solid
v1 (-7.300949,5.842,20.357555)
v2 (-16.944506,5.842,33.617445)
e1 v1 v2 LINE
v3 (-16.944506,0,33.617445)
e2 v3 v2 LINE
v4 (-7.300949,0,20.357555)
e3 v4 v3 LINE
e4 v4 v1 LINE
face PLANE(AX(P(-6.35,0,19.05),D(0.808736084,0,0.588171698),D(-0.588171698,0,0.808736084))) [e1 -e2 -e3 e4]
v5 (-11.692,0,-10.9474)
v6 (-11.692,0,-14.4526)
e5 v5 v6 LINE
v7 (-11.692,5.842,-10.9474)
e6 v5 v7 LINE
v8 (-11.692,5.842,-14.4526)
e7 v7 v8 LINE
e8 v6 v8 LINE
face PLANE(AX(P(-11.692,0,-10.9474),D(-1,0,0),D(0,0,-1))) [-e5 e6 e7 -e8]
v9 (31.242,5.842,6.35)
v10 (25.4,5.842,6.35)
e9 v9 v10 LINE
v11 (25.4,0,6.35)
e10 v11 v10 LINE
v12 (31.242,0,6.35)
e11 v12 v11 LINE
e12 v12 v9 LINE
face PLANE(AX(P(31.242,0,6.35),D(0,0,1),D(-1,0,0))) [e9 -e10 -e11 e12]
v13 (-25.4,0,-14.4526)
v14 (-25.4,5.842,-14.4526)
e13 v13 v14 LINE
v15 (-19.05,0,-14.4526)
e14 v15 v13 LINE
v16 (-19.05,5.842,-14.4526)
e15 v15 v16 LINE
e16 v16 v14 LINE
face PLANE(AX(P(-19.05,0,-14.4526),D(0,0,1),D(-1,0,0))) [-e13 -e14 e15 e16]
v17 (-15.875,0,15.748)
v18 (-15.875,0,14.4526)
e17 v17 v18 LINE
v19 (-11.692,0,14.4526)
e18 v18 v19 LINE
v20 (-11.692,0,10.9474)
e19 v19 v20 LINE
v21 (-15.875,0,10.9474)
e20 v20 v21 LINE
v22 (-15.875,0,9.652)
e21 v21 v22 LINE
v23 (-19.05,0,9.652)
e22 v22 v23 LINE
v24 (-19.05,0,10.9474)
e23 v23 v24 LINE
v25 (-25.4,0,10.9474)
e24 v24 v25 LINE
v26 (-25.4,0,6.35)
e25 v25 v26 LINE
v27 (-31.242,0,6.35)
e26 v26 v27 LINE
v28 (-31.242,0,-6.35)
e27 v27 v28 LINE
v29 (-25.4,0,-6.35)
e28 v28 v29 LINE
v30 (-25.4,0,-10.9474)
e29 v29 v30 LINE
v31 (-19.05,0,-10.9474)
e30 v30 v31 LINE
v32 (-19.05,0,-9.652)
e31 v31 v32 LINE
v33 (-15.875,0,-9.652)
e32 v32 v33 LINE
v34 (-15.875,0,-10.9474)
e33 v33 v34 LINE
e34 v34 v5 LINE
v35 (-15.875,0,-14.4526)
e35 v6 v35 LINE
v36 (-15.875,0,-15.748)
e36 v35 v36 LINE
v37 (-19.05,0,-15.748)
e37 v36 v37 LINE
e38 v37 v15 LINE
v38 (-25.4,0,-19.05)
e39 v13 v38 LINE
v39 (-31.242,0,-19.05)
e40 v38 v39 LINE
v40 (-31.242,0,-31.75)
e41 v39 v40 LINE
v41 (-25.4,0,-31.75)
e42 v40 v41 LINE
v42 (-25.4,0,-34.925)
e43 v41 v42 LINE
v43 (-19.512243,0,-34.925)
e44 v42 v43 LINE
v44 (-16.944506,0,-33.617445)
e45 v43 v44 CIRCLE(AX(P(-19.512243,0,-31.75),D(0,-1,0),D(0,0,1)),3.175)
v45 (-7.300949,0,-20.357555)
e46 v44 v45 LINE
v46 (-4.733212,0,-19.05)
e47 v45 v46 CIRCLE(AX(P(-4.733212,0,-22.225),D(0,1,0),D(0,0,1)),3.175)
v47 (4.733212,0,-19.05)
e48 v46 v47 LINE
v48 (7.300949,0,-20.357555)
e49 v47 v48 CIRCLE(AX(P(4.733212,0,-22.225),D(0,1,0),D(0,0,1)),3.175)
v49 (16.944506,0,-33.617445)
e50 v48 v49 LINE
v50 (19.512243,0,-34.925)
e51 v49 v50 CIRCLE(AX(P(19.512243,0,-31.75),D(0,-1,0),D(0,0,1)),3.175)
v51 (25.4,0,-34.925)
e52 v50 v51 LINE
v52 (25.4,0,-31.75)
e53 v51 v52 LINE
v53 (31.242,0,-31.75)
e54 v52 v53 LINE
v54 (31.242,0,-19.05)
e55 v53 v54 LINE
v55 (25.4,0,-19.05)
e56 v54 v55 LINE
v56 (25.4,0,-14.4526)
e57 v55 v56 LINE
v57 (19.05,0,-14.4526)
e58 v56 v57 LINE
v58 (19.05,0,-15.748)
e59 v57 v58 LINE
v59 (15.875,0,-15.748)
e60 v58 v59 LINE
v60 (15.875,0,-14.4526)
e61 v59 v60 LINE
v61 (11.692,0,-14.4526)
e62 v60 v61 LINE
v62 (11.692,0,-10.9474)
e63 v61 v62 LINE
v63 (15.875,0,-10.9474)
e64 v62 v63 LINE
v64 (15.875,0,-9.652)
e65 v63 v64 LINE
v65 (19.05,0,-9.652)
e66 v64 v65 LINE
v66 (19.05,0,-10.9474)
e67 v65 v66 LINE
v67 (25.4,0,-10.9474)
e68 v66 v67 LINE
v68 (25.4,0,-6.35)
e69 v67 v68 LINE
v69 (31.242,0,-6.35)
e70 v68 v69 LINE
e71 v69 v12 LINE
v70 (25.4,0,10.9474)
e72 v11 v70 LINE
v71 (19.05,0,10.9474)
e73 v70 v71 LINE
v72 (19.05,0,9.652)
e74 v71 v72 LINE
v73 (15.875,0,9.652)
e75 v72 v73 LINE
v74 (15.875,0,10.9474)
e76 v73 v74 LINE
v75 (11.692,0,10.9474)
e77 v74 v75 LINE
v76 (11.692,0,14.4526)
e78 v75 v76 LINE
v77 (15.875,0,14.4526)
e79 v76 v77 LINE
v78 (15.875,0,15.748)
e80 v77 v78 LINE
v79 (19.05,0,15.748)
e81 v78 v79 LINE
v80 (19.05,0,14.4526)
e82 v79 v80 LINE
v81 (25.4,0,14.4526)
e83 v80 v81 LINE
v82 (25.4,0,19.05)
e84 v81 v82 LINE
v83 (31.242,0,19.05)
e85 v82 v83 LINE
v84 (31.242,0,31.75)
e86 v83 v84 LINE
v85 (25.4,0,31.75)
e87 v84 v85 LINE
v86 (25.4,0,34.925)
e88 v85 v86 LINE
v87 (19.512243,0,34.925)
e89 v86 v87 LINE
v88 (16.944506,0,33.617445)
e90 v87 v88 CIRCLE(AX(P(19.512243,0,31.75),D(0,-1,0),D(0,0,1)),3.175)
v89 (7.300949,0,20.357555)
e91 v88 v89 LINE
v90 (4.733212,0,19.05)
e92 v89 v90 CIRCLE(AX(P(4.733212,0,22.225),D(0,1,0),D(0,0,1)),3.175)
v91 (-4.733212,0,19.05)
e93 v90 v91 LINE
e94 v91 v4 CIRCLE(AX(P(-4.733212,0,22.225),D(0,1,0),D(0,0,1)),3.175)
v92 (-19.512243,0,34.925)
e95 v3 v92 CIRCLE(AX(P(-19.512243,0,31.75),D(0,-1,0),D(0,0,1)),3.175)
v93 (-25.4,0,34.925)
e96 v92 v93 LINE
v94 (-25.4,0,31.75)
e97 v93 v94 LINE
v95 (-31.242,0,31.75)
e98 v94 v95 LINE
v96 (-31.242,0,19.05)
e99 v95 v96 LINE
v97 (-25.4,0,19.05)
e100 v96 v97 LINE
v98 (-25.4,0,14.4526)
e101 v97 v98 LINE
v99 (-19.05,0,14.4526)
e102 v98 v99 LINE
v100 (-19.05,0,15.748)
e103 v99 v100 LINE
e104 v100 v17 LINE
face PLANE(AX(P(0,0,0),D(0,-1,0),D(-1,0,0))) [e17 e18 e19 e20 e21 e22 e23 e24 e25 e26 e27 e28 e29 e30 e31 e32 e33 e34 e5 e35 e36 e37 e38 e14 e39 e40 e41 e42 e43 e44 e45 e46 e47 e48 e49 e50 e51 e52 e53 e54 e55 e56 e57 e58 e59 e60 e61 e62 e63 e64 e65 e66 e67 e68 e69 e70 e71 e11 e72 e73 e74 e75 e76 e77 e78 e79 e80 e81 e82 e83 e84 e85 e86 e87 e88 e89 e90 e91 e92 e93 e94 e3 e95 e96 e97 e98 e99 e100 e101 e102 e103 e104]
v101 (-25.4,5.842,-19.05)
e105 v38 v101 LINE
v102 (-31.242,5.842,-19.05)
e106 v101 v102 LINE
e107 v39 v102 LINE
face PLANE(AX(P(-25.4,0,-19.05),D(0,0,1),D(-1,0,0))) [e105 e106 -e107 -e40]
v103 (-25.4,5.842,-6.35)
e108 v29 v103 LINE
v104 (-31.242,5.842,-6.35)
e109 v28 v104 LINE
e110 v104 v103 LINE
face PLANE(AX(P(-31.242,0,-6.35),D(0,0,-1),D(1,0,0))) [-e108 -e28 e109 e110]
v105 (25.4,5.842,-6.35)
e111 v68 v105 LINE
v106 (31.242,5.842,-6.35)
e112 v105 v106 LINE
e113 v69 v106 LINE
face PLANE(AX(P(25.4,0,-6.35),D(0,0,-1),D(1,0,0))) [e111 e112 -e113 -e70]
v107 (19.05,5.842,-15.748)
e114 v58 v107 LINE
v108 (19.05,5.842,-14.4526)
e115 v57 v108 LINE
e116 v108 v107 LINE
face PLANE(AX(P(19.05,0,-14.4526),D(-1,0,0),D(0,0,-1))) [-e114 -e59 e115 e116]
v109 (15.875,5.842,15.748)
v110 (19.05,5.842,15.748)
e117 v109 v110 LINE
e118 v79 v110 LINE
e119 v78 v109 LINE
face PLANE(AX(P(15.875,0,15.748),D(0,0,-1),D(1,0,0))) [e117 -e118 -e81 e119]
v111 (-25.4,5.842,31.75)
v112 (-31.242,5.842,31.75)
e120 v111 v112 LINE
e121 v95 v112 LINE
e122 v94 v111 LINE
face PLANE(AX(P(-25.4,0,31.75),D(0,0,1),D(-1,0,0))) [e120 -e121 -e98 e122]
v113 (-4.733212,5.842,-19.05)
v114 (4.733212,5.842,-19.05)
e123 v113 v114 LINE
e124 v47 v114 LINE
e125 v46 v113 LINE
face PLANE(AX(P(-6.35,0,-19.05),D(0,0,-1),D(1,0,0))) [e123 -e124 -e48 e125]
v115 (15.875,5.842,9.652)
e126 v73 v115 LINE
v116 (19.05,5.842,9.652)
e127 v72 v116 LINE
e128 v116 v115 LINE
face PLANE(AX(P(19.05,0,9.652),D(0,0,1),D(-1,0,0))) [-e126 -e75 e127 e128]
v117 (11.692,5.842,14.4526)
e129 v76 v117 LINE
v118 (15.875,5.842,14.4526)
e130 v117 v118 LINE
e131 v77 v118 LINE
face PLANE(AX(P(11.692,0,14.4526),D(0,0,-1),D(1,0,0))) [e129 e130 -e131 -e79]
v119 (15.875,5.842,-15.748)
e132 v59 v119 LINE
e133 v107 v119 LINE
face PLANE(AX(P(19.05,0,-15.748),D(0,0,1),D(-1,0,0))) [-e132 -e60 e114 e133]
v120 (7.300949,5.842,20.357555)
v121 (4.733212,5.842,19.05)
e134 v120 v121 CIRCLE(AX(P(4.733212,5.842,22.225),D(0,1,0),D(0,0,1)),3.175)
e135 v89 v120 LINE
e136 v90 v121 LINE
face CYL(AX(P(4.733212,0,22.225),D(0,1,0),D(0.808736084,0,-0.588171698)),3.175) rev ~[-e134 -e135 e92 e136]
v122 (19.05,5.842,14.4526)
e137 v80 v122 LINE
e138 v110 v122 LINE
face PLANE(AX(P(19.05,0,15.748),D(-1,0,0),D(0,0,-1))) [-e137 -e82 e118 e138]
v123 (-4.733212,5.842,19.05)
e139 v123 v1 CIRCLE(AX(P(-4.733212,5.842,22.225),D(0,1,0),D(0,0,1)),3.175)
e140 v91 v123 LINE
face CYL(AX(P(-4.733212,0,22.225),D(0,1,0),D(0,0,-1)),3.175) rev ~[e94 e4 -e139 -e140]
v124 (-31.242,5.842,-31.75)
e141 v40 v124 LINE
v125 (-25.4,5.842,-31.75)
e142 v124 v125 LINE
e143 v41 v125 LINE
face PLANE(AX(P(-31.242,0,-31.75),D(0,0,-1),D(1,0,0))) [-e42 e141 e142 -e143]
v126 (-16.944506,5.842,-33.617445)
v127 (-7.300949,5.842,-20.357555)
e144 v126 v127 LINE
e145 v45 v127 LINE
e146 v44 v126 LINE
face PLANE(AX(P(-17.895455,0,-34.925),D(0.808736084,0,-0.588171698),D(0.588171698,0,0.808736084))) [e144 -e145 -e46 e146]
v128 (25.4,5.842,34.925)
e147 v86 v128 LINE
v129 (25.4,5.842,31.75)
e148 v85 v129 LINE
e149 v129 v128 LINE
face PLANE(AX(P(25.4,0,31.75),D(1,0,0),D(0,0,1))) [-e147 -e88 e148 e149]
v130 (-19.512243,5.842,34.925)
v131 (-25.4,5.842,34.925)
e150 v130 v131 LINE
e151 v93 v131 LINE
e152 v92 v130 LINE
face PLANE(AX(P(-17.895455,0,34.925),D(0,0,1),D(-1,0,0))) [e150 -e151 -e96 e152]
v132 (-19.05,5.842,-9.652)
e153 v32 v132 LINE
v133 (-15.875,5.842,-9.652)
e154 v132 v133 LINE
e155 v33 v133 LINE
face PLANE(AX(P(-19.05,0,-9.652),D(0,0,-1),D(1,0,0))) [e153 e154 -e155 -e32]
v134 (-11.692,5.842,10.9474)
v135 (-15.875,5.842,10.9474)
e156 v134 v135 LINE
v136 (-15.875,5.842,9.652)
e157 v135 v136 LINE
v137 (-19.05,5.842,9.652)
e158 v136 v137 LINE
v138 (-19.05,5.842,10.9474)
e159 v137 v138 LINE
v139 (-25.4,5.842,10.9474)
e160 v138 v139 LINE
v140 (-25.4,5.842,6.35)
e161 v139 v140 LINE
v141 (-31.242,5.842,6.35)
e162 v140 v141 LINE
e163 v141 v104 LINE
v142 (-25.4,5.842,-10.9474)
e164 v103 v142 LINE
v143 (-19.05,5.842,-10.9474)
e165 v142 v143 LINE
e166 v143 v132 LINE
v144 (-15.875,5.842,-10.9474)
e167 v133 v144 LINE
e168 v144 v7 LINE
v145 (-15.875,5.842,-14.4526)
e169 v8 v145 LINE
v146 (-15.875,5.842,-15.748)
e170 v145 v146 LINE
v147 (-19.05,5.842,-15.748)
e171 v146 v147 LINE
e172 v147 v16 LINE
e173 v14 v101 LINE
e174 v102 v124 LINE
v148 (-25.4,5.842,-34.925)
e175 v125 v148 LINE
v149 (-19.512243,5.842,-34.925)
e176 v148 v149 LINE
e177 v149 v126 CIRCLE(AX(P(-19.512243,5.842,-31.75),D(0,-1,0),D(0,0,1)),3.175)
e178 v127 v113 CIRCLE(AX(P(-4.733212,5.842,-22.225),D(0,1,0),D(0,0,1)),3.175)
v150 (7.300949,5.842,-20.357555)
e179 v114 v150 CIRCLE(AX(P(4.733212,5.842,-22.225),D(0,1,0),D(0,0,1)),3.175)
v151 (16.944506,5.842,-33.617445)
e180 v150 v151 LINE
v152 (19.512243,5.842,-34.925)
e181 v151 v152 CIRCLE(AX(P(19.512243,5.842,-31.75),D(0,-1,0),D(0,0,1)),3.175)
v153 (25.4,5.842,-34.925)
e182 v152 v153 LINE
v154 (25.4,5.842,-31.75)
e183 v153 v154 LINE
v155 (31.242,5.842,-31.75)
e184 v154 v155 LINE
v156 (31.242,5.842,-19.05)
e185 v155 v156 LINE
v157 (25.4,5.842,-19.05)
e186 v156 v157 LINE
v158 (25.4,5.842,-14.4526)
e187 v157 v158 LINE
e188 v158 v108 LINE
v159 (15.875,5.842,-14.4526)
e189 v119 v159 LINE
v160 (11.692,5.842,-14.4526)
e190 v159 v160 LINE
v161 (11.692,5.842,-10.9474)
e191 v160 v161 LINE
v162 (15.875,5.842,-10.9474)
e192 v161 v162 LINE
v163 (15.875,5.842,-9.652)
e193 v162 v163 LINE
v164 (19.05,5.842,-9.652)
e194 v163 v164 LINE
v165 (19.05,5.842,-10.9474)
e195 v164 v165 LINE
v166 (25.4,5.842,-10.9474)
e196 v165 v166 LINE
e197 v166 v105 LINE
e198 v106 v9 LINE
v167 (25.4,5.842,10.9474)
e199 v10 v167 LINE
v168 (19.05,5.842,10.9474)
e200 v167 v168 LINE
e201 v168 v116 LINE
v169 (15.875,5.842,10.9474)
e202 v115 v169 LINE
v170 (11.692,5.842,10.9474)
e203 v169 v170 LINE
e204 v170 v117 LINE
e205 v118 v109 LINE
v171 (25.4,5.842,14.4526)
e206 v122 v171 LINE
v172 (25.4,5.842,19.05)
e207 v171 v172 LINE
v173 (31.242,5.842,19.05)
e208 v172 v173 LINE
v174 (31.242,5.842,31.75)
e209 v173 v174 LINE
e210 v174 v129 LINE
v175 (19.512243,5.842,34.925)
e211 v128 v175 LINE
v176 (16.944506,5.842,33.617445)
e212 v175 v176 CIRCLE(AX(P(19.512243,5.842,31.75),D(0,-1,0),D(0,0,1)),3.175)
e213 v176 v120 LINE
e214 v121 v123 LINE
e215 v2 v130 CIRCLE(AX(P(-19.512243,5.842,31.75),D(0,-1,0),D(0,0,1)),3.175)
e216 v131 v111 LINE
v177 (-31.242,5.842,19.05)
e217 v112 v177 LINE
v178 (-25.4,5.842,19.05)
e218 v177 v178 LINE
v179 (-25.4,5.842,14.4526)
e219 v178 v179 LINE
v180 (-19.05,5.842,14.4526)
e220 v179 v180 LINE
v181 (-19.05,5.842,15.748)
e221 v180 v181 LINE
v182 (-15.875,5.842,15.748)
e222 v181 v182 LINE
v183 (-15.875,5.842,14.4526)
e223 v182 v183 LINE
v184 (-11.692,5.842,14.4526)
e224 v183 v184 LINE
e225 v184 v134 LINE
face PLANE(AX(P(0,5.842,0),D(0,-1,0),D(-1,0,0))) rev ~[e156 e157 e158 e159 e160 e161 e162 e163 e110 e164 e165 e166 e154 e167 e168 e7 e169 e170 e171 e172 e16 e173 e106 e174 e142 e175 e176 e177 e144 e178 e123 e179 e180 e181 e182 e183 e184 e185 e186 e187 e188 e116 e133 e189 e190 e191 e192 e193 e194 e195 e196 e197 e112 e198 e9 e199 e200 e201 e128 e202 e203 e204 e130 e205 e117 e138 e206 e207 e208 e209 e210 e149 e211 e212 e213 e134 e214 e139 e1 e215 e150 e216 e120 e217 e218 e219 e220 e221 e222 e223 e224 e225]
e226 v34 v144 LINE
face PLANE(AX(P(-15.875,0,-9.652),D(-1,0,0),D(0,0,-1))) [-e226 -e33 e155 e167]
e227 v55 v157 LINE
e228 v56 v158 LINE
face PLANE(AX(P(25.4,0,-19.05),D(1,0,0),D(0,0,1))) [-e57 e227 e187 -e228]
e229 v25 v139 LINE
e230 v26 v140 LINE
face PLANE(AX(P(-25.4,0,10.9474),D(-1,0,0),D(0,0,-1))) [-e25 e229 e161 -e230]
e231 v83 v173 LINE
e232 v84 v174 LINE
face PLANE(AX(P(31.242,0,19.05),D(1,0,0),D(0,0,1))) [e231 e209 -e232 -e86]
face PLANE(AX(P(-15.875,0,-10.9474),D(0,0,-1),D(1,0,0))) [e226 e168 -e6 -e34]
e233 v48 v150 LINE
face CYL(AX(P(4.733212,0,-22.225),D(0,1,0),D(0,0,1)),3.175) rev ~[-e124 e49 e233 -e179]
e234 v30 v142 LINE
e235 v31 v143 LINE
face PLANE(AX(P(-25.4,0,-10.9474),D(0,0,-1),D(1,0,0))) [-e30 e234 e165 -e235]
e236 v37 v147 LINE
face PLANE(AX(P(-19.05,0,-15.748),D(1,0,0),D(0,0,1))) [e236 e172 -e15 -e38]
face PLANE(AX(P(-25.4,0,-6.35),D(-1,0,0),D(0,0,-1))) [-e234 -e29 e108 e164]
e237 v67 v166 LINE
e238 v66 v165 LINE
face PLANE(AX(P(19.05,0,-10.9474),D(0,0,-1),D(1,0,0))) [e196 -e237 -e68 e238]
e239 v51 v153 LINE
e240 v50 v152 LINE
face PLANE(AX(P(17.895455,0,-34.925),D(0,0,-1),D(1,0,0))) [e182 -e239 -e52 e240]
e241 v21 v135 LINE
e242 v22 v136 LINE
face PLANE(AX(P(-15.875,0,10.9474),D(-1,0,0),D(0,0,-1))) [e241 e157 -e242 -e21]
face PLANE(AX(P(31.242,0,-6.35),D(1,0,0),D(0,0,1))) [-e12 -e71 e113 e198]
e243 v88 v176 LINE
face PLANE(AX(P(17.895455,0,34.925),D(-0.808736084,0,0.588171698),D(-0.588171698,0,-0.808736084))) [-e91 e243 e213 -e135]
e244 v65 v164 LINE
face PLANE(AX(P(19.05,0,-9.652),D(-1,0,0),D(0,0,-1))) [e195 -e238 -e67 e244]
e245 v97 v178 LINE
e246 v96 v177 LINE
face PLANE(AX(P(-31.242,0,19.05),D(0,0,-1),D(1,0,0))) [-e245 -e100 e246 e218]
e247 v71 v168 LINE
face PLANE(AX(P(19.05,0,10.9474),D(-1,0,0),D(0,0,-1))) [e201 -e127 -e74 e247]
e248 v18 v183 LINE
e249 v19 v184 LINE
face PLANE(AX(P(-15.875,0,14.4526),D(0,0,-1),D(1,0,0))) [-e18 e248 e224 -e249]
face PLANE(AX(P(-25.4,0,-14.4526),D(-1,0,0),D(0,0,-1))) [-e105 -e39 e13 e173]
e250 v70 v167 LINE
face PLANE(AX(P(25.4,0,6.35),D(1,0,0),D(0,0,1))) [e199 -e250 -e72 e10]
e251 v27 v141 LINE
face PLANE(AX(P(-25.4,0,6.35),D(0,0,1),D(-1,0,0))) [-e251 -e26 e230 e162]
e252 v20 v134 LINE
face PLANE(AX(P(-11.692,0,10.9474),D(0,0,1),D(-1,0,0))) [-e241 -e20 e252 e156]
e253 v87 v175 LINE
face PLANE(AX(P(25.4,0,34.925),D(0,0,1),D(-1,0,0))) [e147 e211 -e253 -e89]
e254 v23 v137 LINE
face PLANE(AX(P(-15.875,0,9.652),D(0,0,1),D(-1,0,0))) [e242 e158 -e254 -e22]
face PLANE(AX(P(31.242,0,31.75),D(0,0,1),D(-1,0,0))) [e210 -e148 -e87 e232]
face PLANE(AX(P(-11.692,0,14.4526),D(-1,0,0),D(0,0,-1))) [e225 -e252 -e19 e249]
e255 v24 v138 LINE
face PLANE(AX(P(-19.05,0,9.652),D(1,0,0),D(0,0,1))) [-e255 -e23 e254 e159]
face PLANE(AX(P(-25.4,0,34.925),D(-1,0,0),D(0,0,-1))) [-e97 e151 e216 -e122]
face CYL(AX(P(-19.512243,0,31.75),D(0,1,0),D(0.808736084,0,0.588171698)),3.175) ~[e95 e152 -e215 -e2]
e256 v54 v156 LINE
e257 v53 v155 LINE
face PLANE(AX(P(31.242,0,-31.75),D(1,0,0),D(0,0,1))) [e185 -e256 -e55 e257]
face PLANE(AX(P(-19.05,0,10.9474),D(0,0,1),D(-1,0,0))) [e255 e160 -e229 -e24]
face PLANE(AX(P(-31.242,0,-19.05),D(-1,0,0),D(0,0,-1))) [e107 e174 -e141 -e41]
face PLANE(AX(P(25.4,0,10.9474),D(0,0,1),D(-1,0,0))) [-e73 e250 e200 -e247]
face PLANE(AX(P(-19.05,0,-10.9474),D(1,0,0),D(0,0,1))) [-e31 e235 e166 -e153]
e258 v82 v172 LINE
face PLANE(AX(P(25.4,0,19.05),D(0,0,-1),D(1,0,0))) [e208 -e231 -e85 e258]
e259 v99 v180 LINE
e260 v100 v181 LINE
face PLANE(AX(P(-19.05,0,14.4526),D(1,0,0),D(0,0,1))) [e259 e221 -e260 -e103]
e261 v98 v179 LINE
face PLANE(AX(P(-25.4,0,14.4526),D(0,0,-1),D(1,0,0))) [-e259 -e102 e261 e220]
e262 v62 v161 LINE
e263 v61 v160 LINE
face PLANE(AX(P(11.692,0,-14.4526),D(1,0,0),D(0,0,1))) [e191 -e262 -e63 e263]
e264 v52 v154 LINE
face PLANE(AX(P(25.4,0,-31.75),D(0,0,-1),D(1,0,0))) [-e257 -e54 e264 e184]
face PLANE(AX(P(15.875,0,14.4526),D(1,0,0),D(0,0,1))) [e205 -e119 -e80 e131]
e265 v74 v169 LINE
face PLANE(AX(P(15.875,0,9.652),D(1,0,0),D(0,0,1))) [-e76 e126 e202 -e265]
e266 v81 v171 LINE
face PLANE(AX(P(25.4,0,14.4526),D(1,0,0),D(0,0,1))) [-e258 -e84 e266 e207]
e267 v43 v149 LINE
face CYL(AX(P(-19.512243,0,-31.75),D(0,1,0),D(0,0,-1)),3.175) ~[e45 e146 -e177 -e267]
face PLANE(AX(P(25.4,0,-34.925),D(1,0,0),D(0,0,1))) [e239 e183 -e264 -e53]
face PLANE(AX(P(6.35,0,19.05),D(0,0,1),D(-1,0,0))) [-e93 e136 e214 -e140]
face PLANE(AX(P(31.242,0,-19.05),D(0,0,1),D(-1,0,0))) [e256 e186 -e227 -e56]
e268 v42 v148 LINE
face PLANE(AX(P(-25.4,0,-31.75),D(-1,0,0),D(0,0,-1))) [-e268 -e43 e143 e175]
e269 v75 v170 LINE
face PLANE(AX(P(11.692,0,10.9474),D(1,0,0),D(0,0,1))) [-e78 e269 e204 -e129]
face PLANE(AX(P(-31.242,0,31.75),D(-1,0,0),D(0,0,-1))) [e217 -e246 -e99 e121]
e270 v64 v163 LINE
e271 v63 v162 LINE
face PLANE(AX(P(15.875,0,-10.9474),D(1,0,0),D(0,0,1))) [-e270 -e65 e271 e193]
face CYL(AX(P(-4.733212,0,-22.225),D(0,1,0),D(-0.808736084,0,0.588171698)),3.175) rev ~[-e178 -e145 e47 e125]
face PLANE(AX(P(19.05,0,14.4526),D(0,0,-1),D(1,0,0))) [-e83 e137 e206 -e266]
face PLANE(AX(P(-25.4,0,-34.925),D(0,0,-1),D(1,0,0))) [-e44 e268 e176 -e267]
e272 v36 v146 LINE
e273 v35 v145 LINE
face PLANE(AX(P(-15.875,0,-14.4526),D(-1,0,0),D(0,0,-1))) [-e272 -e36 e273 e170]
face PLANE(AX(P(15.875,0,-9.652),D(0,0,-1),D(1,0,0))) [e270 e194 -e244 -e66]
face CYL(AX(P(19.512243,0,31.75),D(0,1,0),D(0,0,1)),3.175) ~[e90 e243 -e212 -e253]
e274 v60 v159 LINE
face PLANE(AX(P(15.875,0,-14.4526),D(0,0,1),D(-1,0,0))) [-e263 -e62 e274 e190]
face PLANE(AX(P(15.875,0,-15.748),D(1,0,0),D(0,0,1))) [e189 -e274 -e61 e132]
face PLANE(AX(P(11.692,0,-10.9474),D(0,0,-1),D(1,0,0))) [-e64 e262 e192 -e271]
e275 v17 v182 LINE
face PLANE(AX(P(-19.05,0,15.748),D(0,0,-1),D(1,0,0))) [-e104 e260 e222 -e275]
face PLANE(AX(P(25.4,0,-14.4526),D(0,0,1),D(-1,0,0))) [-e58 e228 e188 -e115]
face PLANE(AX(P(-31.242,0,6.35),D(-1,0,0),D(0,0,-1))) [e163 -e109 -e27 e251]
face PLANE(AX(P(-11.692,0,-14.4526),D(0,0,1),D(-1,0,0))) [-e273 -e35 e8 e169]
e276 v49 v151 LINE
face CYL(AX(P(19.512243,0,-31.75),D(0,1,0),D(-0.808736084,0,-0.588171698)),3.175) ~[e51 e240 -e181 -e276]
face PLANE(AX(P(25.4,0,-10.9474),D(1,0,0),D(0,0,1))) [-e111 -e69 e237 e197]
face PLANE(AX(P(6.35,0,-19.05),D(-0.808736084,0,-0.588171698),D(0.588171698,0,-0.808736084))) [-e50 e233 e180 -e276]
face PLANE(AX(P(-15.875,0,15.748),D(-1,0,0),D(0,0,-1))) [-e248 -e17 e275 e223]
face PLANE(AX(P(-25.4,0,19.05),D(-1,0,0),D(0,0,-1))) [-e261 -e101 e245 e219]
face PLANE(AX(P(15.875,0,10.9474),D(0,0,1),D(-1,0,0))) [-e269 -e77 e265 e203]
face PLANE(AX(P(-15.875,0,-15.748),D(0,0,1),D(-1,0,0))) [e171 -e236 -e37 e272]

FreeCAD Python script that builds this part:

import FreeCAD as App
import Part
import Sketcher
Q = App.Units.Quantity


def edges_at(feature, points):
    """Names of the edges that pass closest to the given points."""
    edges = feature.Shape.Edges
    near = lambda p: min(range(len(edges)), key=lambda i: edges[i].distToShape(Part.Vertex(*p))[0])
    return sorted({f"Edge{near(p) + 1}" for p in points})

doc = App.newDocument("Part")
body = doc.addObject("PartDesign::Body", "Body")

# Sketch on XZ plane
sketch1 = body.newObject("Sketcher::SketchObject", "Sketch")
sketch1.AttachmentSupport = (doc.getObject("XZ_Plane"), [""])
sketch1.MapMode = "FlatFace"
sketch1.addGeometry(Part.LineSegment(App.Vector(17.9, 34.9, 0), App.Vector(25.4, 34.9, 0)), False)
sketch1.addGeometry(Part.LineSegment(App.Vector(25.4, 34.9, 0), App.Vector(25.4, 31.8, 0)), False)
sketch1.addGeometry(Part.LineSegment(App.Vector(25.4, 31.8, 0), App.Vector(31.2, 31.8, 0)), False)
sketch1.addGeometry(Part.LineSegment(App.Vector(31.2, 31.8, 0), App.Vector(31.2, 19.1, 0)), False)
sketch1.addGeometry(Part.LineSegment(App.Vector(31.2, 19.1, 0), App.Vector(25.4, 19.1, 0)), False)
sketch1.addGeometry(Part.LineSegment(App.Vector(25.4, 19.1, 0), App.Vector(25.4, 14.5, 0)), False)
sketch1.addGeometry(Part.LineSegment(App.Vector(25.4, 14.5, 0), App.Vector(19.1, 14.5, 0)), False)
sketch1.addGeometry(Part.LineSegment(App.Vector(19.1, 14.5, 0), App.Vector(19.1, 15.7, 0)), False)
sketch1.addGeometry(Part.LineSegment(App.Vector(19.1, 15.7, 0), App.Vector(15.9, 15.7, 0)), False)
sketch1.addGeometry(Part.LineSegment(App.Vector(15.9, 15.7, 0), App.Vector(15.9, 14.5, 0)), False)
sketch1.addGeometry(Part.LineSegment(App.Vector(15.9, 14.5, 0), App.Vector(11.7, 14.5, 0)), False)
sketch1.addGeometry(Part.LineSegment(App.Vector(11.7, 14.5, 0), App.Vector(11.7, 10.9, 0)), False)
sketch1.addGeometry(Part.LineSegment(App.Vector(11.7, 10.9, 0), App.Vector(15.9, 10.9, 0)), False)
sketch1.addGeometry(Part.LineSegment(App.Vector(15.9, 10.9, 0), App.Vector(15.9, 9.7, 0)), False)
sketch1.addGeometry(Part.LineSegment(App.Vector(15.9, 9.7, 0), App.Vector(19.1, 9.7, 0)), False)
sketch1.addGeometry(Part.LineSegment(App.Vector(19.1, 9.7, 0), App.Vector(19.1, 10.9, 0)), False)
sketch1.addGeometry(Part.LineSegment(App.Vector(19.1, 10.9, 0), App.Vector(25.4, 10.9, 0)), False)
sketch1.addGeometry(Part.LineSegment(App.Vector(25.4, 10.9, 0), App.Vector(25.4, 6.3, 0)), False)
sketch1.addGeometry(Part.LineSegment(App.Vector(25.4, 6.3, 0), App.Vector(31.2, 6.3, 0)), False)
sketch1.addGeometry(Part.LineSegment(App.Vector(31.2, 6.3, 0), App.Vector(31.2, -6.3, 0)), False)
sketch1.addGeometry(Part.LineSegment(App.Vector(31.2, -6.3, 0), App.Vector(25.4, -6.3, 0)), False)
sketch1.addGeometry(Part.LineSegment(App.Vector(25.4, -6.3, 0), App.Vector(25.4, -10.9, 0)), False)
sketch1.addGeometry(Part.LineSegment(App.Vector(25.4, -10.9, 0), App.Vector(19.1, -10.9, 0)), False)
sketch1.addGeometry(Part.LineSegment(App.Vector(19.1, -10.9, 0), App.Vector(19.1, -9.7, 0)), False)
sketch1.addGeometry(Part.LineSegment(App.Vector(19.1, -9.7, 0), App.Vector(15.9, -9.7, 0)), False)
sketch1.addGeometry(Part.LineSegment(App.Vector(15.9, -9.7, 0), App.Vector(15.9, -10.9, 0)), False)
sketch1.addGeometry(Part.LineSegment(App.Vector(15.9, -10.9, 0), App.Vector(11.7, -10.9, 0)), False)
sketch1.addGeometry(Part.LineSegment(App.Vector(11.7, -10.9, 0), App.Vector(11.7, -14.5, 0)), False)
sketch1.addGeometry(Part.LineSegment(App.Vector(11.7, -14.5, 0), App.Vector(15.9, -14.5, 0)), False)
sketch1.addGeometry(Part.LineSegment(App.Vector(15.9, -14.5, 0), App.Vector(15.9, -15.7, 0)), False)
sketch1.addGeometry(Part.LineSegment(App.Vector(15.9, -15.7, 0), App.Vector(19.1, -15.7, 0)), False)
sketch1.addGeometry(Part.LineSegment(App.Vector(19.1, -15.7, 0), App.Vector(19.1, -14.5, 0)), False)
sketch1.addGeometry(Part.LineSegment(App.Vector(19.1, -14.5, 0), App.Vector(25.4, -14.5, 0)), False)
sketch1.addGeometry(Part.LineSegment(App.Vector(25.4, -14.5, 0), App.Vector(25.4, -19.1, 0)), False)
sketch1.addGeometry(Part.LineSegment(App.Vector(25.4, -19.1, 0), App.Vector(31.2, -19.1, 0)), False)
sketch1.addGeometry(Part.LineSegment(App.Vector(31.2, -19.1, 0), App.Vector(31.2, -31.8, 0)), False)
sketch1.addGeometry(Part.LineSegment(App.Vector(31.2, -31.8, 0), App.Vector(25.4, -31.8, 0)), False)
sketch1.addGeometry(Part.LineSegment(App.Vector(25.4, -31.8, 0), App.Vector(25.4, -34.9, 0)), False)
sketch1.addGeometry(Part.LineSegment(App.Vector(25.4, -34.9, 0), App.Vector(17.9, -34.9, 0)), False)
sketch1.addGeometry(Part.LineSegment(App.Vector(17.9, -34.9, 0), App.Vector(6.3, -19.1, 0)), False)
sketch1.addGeometry(Part.LineSegment(App.Vector(6.3, -19.1, 0), App.Vector(-6.3, -19.1, 0)), False)
sketch1.addGeometry(Part.LineSegment(App.Vector(-6.3, -19.1, 0), App.Vector(-17.9, -34.9, 0)), False)
sketch1.addGeometry(Part.LineSegment(App.Vector(-17.9, -34.9, 0), App.Vector(-25.4, -34.9, 0)), False)
sketch1.addGeometry(Part.LineSegment(App.Vector(-25.4, -34.9, 0), App.Vector(-25.4, -31.8, 0)), False)
sketch1.addGeometry(Part.LineSegment(App.Vector(-25.4, -31.8, 0), App.Vector(-31.2, -31.8, 0)), False)
sketch1.addGeometry(Part.LineSegment(App.Vector(-31.2, -31.8, 0), App.Vector(-31.2, -19.1, 0)), False)
sketch1.addGeometry(Part.LineSegment(App.Vector(-31.2, -19.1, 0), App.Vector(-25.4, -19.1, 0)), False)
sketch1.addGeometry(Part.LineSegment(App.Vector(-25.4, -19.1, 0), App.Vector(-25.4, -14.5, 0)), False)
sketch1.addGeometry(Part.LineSegment(App.Vector(-25.4, -14.5, 0), App.Vector(-19.1, -14.5, 0)), False)
sketch1.addGeometry(Part.LineSegment(App.Vector(-19.1, -14.5, 0), App.Vector(-19.1, -15.7, 0)), False)
sketch1.addGeometry(Part.LineSegment(App.Vector(-19.1, -15.7, 0), App.Vector(-15.9, -15.7, 0)), False)
sketch1.addGeometry(Part.LineSegment(App.Vector(-15.9, -15.7, 0), App.Vector(-15.9, -14.5, 0)), False)
sketch1.addGeometry(Part.LineSegment(App.Vector(-15.9, -14.5, 0), App.Vector(-11.7, -14.5, 0)), False)
sketch1.addGeometry(Part.LineSegment(App.Vector(-11.7, -14.5, 0), App.Vector(-11.7, -10.9, 0)), False)
sketch1.addGeometry(Part.LineSegment(App.Vector(-11.7, -10.9, 0), App.Vector(-15.9, -10.9, 0)), False)
sketch1.addGeometry(Part.LineSegment(App.Vector(-15.9, -10.9, 0), App.Vector(-15.9, -9.7, 0)), False)
sketch1.addGeometry(Part.LineSegment(App.Vector(-15.9, -9.7, 0), App.Vector(-19.1, -9.7, 0)), False)
sketch1.addGeometry(Part.LineSegment(App.Vector(-19.1, -9.7, 0), App.Vector(-19.1, -10.9, 0)), False)
sketch1.addGeometry(Part.LineSegment(App.Vector(-19.1, -10.9, 0), App.Vector(-25.4, -10.9, 0)), False)
sketch1.addGeometry(Part.LineSegment(App.Vector(-25.4, -10.9, 0), App.Vector(-25.4, -6.3, 0)), False)
sketch1.addGeometry(Part.LineSegment(App.Vector(-25.4, -6.3, 0), App.Vector(-31.2, -6.3, 0)), False)
sketch1.addGeometry(Part.LineSegment(App.Vector(-31.2, -6.3, 0), App.Vector(-31.2, 6.3, 0)), False)
sketch1.addGeometry(Part.LineSegment(App.Vector(-31.2, 6.3, 0), App.Vector(-25.4, 6.3, 0)), False)
sketch1.addGeometry(Part.LineSegment(App.Vector(-25.4, 6.3, 0), App.Vector(-25.4, 10.9, 0)), False)
sketch1.addGeometry(Part.LineSegment(App.Vector(-25.4, 10.9, 0), App.Vector(-19.1, 10.9, 0)), False)
sketch1.addGeometry(Part.LineSegment(App.Vector(-19.1, 10.9, 0), App.Vector(-19.1, 9.7, 0)), False)
sketch1.addGeometry(Part.LineSegment(App.Vector(-19.1, 9.7, 0), App.Vector(-15.9, 9.7, 0)), False)
sketch1.addGeometry(Part.LineSegment(App.Vector(-15.9, 9.7, 0), App.Vector(-15.9, 10.9, 0)), False)
sketch1.addGeometry(Part.LineSegment(App.Vector(-15.9, 10.9, 0), App.Vector(-11.7, 10.9, 0)), False)
sketch1.addGeometry(Part.LineSegment(App.Vector(-11.7, 10.9, 0), App.Vector(-11.7, 14.5, 0)), False)
sketch1.addGeometry(Part.LineSegment(App.Vector(-11.7, 14.5, 0), App.Vector(-15.9, 14.5, 0)), False)
sketch1.addGeometry(Part.LineSegment(App.Vector(-15.9, 14.5, 0), App.Vector(-15.9, 15.7, 0)), False)
sketch1.addGeometry(Part.LineSegment(App.Vector(-15.9, 15.7, 0), App.Vector(-19.1, 15.7, 0)), False)
sketch1.addGeometry(Part.LineSegment(App.Vector(-19.1, 15.7, 0), App.Vector(-19.1, 14.5, 0)), False)
sketch1.addGeometry(Part.LineSegment(App.Vector(-19.1, 14.5, 0), App.Vector(-25.4, 14.5, 0)), False)
sketch1.addGeometry(Part.LineSegment(App.Vector(-25.4, 14.5, 0), App.Vector(-25.4, 19.1, 0)), False)
sketch1.addGeometry(Part.LineSegment(App.Vector(-25.4, 19.1, 0), App.Vector(-31.2, 19.1, 0)), False)
sketch1.addGeometry(Part.LineSegment(App.Vector(-31.2, 19.1, 0), App.Vector(-31.2, 31.8, 0)), False)
sketch1.addGeometry(Part.LineSegment(App.Vector(-31.2, 31.8, 0), App.Vector(-25.4, 31.8, 0)), False)
sketch1.addGeometry(Part.LineSegment(App.Vector(-25.4, 31.8, 0), App.Vector(-25.4, 34.9, 0)), False)
sketch1.addGeometry(Part.LineSegment(App.Vector(-25.4, 34.9, 0), App.Vector(-17.9, 34.9, 0)), False)
sketch1.addGeometry(Part.LineSegment(App.Vector(-17.9, 34.9, 0), App.Vector(-6.3, 19.1, 0)), False)
sketch1.addGeometry(Part.LineSegment(App.Vector(-6.3, 19.1, 0), App.Vector(6.3, 19.1, 0)), False)
sketch1.addGeometry(Part.LineSegment(App.Vector(6.3, 19.1, 0), App.Vector(17.9, 34.9, 0)), False)
sketch1.addConstraint(Sketcher.Constraint("Coincident", 0, 2, 1, 1))
sketch1.addConstraint(Sketcher.Constraint("Coincident", 1, 2, 2, 1))
sketch1.addConstraint(Sketcher.Constraint("Coincident", 2, 2, 3, 1))
sketch1.addConstraint(Sketcher.Constraint("Coincident", 3, 2, 4, 1))
sketch1.addConstraint(Sketcher.Constraint("Coincident", 4, 2, 5, 1))
sketch1.addConstraint(Sketcher.Constraint("Coincident", 5, 2, 6, 1))
sketch1.addConstraint(Sketcher.Constraint("Coincident", 6, 2, 7, 1))
sketch1.addConstraint(Sketcher.Constraint("Coincident", 7, 2, 8, 1))
sketch1.addConstraint(Sketcher.Constraint("Coincident", 8, 2, 9, 1))
sketch1.addConstraint(Sketcher.Constraint("Coincident", 9, 2, 10, 1))
sketch1.addConstraint(Sketcher.Constraint("Coincident", 10, 2, 11, 1))
sketch1.addConstraint(Sketcher.Constraint("Coincident", 11, 2, 12, 1))
sketch1.addConstraint(Sketcher.Constraint("Coincident", 12, 2, 13, 1))
sketch1.addConstraint(Sketcher.Constraint("Coincident", 13, 2, 14, 1))
sketch1.addConstraint(Sketcher.Constraint("Coincident", 14, 2, 15, 1))
sketch1.addConstraint(Sketcher.Constraint("Coincident", 15, 2, 16, 1))
sketch1.addConstraint(Sketcher.Constraint("Coincident", 16, 2, 17, 1))
sketch1.addConstraint(Sketcher.Constraint("Coincident", 17, 2, 18, 1))
sketch1.addConstraint(Sketcher.Constraint("Coincident", 18, 2, 19, 1))
sketch1.addConstraint(Sketcher.Constraint("Coincident", 19, 2, 20, 1))
sketch1.addConstraint(Sketcher.Constraint("Coincident", 20, 2, 21, 1))
sketch1.addConstraint(Sketcher.Constraint("Coincident", 21, 2, 22, 1))
sketch1.addConstraint(Sketcher.Constraint("Coincident", 22, 2, 23, 1))
sketch1.addConstraint(Sketcher.Constraint("Coincident", 23, 2, 24, 1))
sketch1.addConstraint(Sketcher.Constraint("Coincident", 24, 2, 25, 1))
sketch1.addConstraint(Sketcher.Constraint("Coincident", 25, 2, 26, 1))
sketch1.addConstraint(Sketcher.Constraint("Coincident", 26, 2, 27, 1))
sketch1.addConstraint(Sketcher.Constraint("Coincident", 27, 2, 28, 1))
sketch1.addConstraint(Sketcher.Constraint("Coincident", 28, 2, 29, 1))
sketch1.addConstraint(Sketcher.Constraint("Coincident", 29, 2, 30, 1))
sketch1.addConstraint(Sketcher.Constraint("Coincident", 30, 2, 31, 1))
sketch1.addConstraint(Sketcher.Constraint("Coincident", 31, 2, 32, 1))
sketch1.addConstraint(Sketcher.Constraint("Coincident", 32, 2, 33, 1))
sketch1.addConstraint(Sketcher.Constraint("Coincident", 33, 2, 34, 1))
sketch1.addConstraint(Sketcher.Constraint("Coincident", 34, 2, 35, 1))
sketch1.addConstraint(Sketcher.Constraint("Coincident", 35, 2, 36, 1))
sketch1.addConstraint(Sketcher.Constraint("Coincident", 36, 2, 37, 1))
sketch1.addConstraint(Sketcher.Constraint("Coincident", 37, 2, 38, 1))
sketch1.addConstraint(Sketcher.Constraint("Coincident", 38, 2, 39, 1))
sketch1.addConstraint(Sketcher.Constraint("Coincident", 39, 2, 40, 1))
sketch1.addConstraint(Sketcher.Constraint("Coincident", 40, 2, 41, 1))
sketch1.addConstraint(Sketcher.Constraint("Coincident", 41, 2, 42, 1))
sketch1.addConstraint(Sketcher.Constraint("Coincident", 42, 2, 43, 1))
sketch1.addConstraint(Sketcher.Constraint("Coincident", 43, 2, 44, 1))
sketch1.addConstraint(Sketcher.Constraint("Coincident", 44, 2, 45, 1))
sketch1.addConstraint(Sketcher.Constraint("Coincident", 45, 2, 46, 1))
sketch1.addConstraint(Sketcher.Constraint("Coincident", 46, 2, 47, 1))
sketch1.addConstraint(Sketcher.Constraint("Coincident", 47, 2, 48, 1))
sketch1.addConstraint(Sketcher.Constraint("Coincident", 48, 2, 49, 1))
sketch1.addConstraint(Sketcher.Constraint("Coincident", 49, 2, 50, 1))
sketch1.addConstraint(Sketcher.Constraint("Coincident", 50, 2, 51, 1))
sketch1.addConstraint(Sketcher.Constraint("Coincident", 51, 2, 52, 1))
sketch1.addConstraint(Sketcher.Constraint("Coincident", 52, 2, 53, 1))
sketch1.addConstraint(Sketcher.Constraint("Coincident", 53, 2, 54, 1))
sketch1.addConstraint(Sketcher.Constraint("Coincident", 54, 2, 55, 1))
sketch1.addConstraint(Sketcher.Constraint("Coincident", 55, 2, 56, 1))
sketch1.addConstraint(Sketcher.Constraint("Coincident", 56, 2, 57, 1))
sketch1.addConstraint(Sketcher.Constraint("Coincident", 57, 2, 58, 1))
sketch1.addConstraint(Sketcher.Constraint("Coincident", 58, 2, 59, 1))
sketch1.addConstraint(Sketcher.Constraint("Coincident", 59, 2, 60, 1))
sketch1.addConstraint(Sketcher.Constraint("Coincident", 60, 2, 61, 1))
sketch1.addConstraint(Sketcher.Constraint("Coincident", 61, 2, 62, 1))
sketch1.addConstraint(Sketcher.Constraint("Coincident", 62, 2, 63, 1))
sketch1.addConstraint(Sketcher.Constraint("Coincident", 63, 2, 64, 1))
sketch1.addConstraint(Sketcher.Constraint("Coincident", 64, 2, 65, 1))
sketch1.addConstraint(Sketcher.Constraint("Coincident", 65, 2, 66, 1))
sketch1.addConstraint(Sketcher.Constraint("Coincident", 66, 2, 67, 1))
sketch1.addConstraint(Sketcher.Constraint("Coincident", 67, 2, 68, 1))
sketch1.addConstraint(Sketcher.Constraint("Coincident", 68, 2, 69, 1))
sketch1.addConstraint(Sketcher.Constraint("Coincident", 69, 2, 70, 1))
sketch1.addConstraint(Sketcher.Constraint("Coincident", 70, 2, 71, 1))
sketch1.addConstraint(Sketcher.Constraint("Coincident", 71, 2, 72, 1))
sketch1.addConstraint(Sketcher.Constraint("Coincident", 72, 2, 73, 1))
sketch1.addConstraint(Sketcher.Constraint("Coincident", 73, 2, 74, 1))
sketch1.addConstraint(Sketcher.Constraint("Coincident", 74, 2, 75, 1))
sketch1.addConstraint(Sketcher.Constraint("Coincident", 75, 2, 76, 1))
sketch1.addConstraint(Sketcher.Constraint("Coincident", 76, 2, 77, 1))
sketch1.addConstraint(Sketcher.Constraint("Coincident", 77, 2, 78, 1))
sketch1.addConstraint(Sketcher.Constraint("Coincident", 78, 2, 79, 1))
sketch1.addConstraint(Sketcher.Constraint("Coincident", 79, 2, 80, 1))
sketch1.addConstraint(Sketcher.Constraint("Coincident", 80, 2, 81, 1))
sketch1.addConstraint(Sketcher.Constraint("Coincident", 81, 2, 82, 1))
sketch1.addConstraint(Sketcher.Constraint("Coincident", 82, 2, 83, 1))
sketch1.addConstraint(Sketcher.Constraint("Coincident", 83, 2, 0, 1))
sketch1.addConstraint(Sketcher.Constraint("Horizontal", 0))
sketch1.addConstraint(Sketcher.Constraint("Vertical", 1))
sketch1.addConstraint(Sketcher.Constraint("Horizontal", 2))
sketch1.addConstraint(Sketcher.Constraint("Vertical", 3))
sketch1.addConstraint(Sketcher.Constraint("Horizontal", 4))
sketch1.addConstraint(Sketcher.Constraint("Vertical", 5))
sketch1.addConstraint(Sketcher.Constraint("Horizontal", 6))
sketch1.addConstraint(Sketcher.Constraint("Vertical", 7))
sketch1.addConstraint(Sketcher.Constraint("Horizontal", 8))
sketch1.addConstraint(Sketcher.Constraint("Vertical", 9))
sketch1.addConstraint(Sketcher.Constraint("Horizontal", 10))
sketch1.addConstraint(Sketcher.Constraint("Vertical", 11))
sketch1.addConstraint(Sketcher.Constraint("Horizontal", 12))
sketch1.addConstraint(Sketcher.Constraint("Vertical", 13))
sketch1.addConstraint(Sketcher.Constraint("Horizontal", 14))
sketch1.addConstraint(Sketcher.Constraint("Vertical", 15))
sketch1.addConstraint(Sketcher.Constraint("Horizontal", 16))
sketch1.addConstraint(Sketcher.Constraint("Vertical", 17))
sketch1.addConstraint(Sketcher.Constraint("Horizontal", 18))
sketch1.addConstraint(Sketcher.Constraint("Vertical", 19))
sketch1.addConstraint(Sketcher.Constraint("Horizontal", 20))
sketch1.addConstraint(Sketcher.Constraint("Vertical", 21))
sketch1.addConstraint(Sketcher.Constraint("Horizontal", 22))
sketch1.addConstraint(Sketcher.Constraint("Vertical", 23))
sketch1.addConstraint(Sketcher.Constraint("Horizontal", 24))
sketch1.addConstraint(Sketcher.Constraint("Vertical", 25))
sketch1.addConstraint(Sketcher.Constraint("Horizontal", 26))
sketch1.addConstraint(Sketcher.Constraint("Vertical", 27))
sketch1.addConstraint(Sketcher.Constraint("Horizontal", 28))
sketch1.addConstraint(Sketcher.Constraint("Vertical", 29))
sketch1.addConstraint(Sketcher.Constraint("Horizontal", 30))
sketch1.addConstraint(Sketcher.Constraint("Vertical", 31))
sketch1.addConstraint(Sketcher.Constraint("Horizontal", 32))
sketch1.addConstraint(Sketcher.Constraint("Vertical", 33))
sketch1.addConstraint(Sketcher.Constraint("Horizontal", 34))
sketch1.addConstraint(Sketcher.Constraint("Vertical", 35))
sketch1.addConstraint(Sketcher.Constraint("Horizontal", 36))
sketch1.addConstraint(Sketcher.Constraint("Vertical", 37))
sketch1.addConstraint(Sketcher.Constraint("Horizontal", 38))
sketch1.addConstraint(Sketcher.Constraint("Horizontal", 40))
sketch1.addConstraint(Sketcher.Constraint("Horizontal", 42))
sketch1.addConstraint(Sketcher.Constraint("Vertical", 43))
sketch1.addConstraint(Sketcher.Constraint("Horizontal", 44))
sketch1.addConstraint(Sketcher.Constraint("Vertical", 45))
sketch1.addConstraint(Sketcher.Constraint("Horizontal", 46))
sketch1.addConstraint(Sketcher.Constraint("Vertical", 47))
sketch1.addConstraint(Sketcher.Constraint("Horizontal", 48))
sketch1.addConstraint(Sketcher.Constraint("Vertical", 49))
sketch1.addConstraint(Sketcher.Constraint("Horizontal", 50))
sketch1.addConstraint(Sketcher.Constraint("Vertical", 51))
sketch1.addConstraint(Sketcher.Constraint("Horizontal", 52))
sketch1.addConstraint(Sketcher.Constraint("Vertical", 53))
sketch1.addConstraint(Sketcher.Constraint("Horizontal", 54))
sketch1.addConstraint(Sketcher.Constraint("Vertical", 55))
sketch1.addConstraint(Sketcher.Constraint("Horizontal", 56))
sketch1.addConstraint(Sketcher.Constraint("Vertical", 57))
sketch1.addConstraint(Sketcher.Constraint("Horizontal", 58))
sketch1.addConstraint(Sketcher.Constraint("Vertical", 59))
sketch1.addConstraint(Sketcher.Constraint("Horizontal", 60))
sketch1.addConstraint(Sketcher.Constraint("Vertical", 61))
sketch1.addConstraint(Sketcher.Constraint("Horizontal", 62))
sketch1.addConstraint(Sketcher.Constraint("Vertical", 63))
sketch1.addConstraint(Sketcher.Constraint("Horizontal", 64))
sketch1.addConstraint(Sketcher.Constraint("Vertical", 65))
sketch1.addConstraint(Sketcher.Constraint("Horizontal", 66))
sketch1.addConstraint(Sketcher.Constraint("Vertical", 67))
sketch1.addConstraint(Sketcher.Constraint("Horizontal", 68))
sketch1.addConstraint(Sketcher.Constraint("Vertical", 69))
sketch1.addConstraint(Sketcher.Constraint("Horizontal", 70))
sketch1.addConstraint(Sketcher.Constraint("Vertical", 71))
sketch1.addConstraint(Sketcher.Constraint("Horizontal", 72))
sketch1.addConstraint(Sketcher.Constraint("Vertical", 73))
sketch1.addConstraint(Sketcher.Constraint("Horizontal", 74))
sketch1.addConstraint(Sketcher.Constraint("Vertical", 75))
sketch1.addConstraint(Sketcher.Constraint("Horizontal", 76))
sketch1.addConstraint(Sketcher.Constraint("Vertical", 77))
sketch1.addConstraint(Sketcher.Constraint("Horizontal", 78))
sketch1.addConstraint(Sketcher.Constraint("Vertical", 79))
sketch1.addConstraint(Sketcher.Constraint("Horizontal", 80))
sketch1.addConstraint(Sketcher.Constraint("Horizontal", 82))
sketch1.addConstraint(Sketcher.Constraint("Symmetric", 0, 2, 42, 2, -1, 1))
sketch1.addConstraint(Sketcher.Constraint("Symmetric", 2, 2, 44, 2, -1, 1))
sketch1.addConstraint(Sketcher.Constraint("Symmetric", 4, 2, 46, 2, -1, 1))
sketch1.addConstraint(Sketcher.Constraint("Symmetric", 6, 2, 48, 2, -1, 1))
sketch1.addConstraint(Sketcher.Constraint("Symmetric", 8, 2, 50, 2, -1, 1))
sketch1.addConstraint(Sketcher.Constraint("Symmetric", 10, 2, 52, 2, -1, 1))
sketch1.addConstraint(Sketcher.Constraint("Symmetric", 12, 2, 54, 2, -1, 1))
sketch1.addConstraint(Sketcher.Constraint("Symmetric", 14, 2, 56, 2, -1, 1))
sketch1.addConstraint(Sketcher.Constraint("Symmetric", 16, 2, 58, 2, -1, 1))
sketch1.addConstraint(Sketcher.Constraint("Symmetric", 18, 2, 60, 2, -1, 1))
sketch1.addConstraint(Sketcher.Constraint("Symmetric", 20, 2, 62, 2, -1, 1))
sketch1.addConstraint(Sketcher.Constraint("Symmetric", 22, 2, 64, 2, -1, 1))
sketch1.addConstraint(Sketcher.Constraint("Symmetric", 24, 2, 66, 2, -1, 1))
sketch1.addConstraint(Sketcher.Constraint("Symmetric", 26, 2, 68, 2, -1, 1))
sketch1.addConstraint(Sketcher.Constraint("Symmetric", 28, 2, 70, 2, -1, 1))
sketch1.addConstraint(Sketcher.Constraint("Symmetric", 30, 2, 72, 2, -1, 1))
sketch1.addConstraint(Sketcher.Constraint("Symmetric", 32, 2, 74, 2, -1, 1))
sketch1.addConstraint(Sketcher.Constraint("Symmetric", 34, 2, 76, 2, -1, 1))
sketch1.addConstraint(Sketcher.Constraint("Symmetric", 36, 2, 78, 2, -1, 1))
sketch1.addConstraint(Sketcher.Constraint("Symmetric", 38, 2, 80, 2, -1, 1))
sketch1.addConstraint(Sketcher.Constraint("Symmetric", 39, 2, 81, 2, -1, 1))
sketch1.addConstraint(Sketcher.Constraint("Symmetric", 38, 2, 41, 2, -2))
sketch1.addConstraint(Sketcher.Constraint("Symmetric", 36, 2, 43, 2, -2))
sketch1.addConstraint(Sketcher.Constraint("Symmetric", 34, 2, 45, 2, -2))
sketch1.addConstraint(Sketcher.Constraint("Symmetric", 32, 2, 47, 2, -2))
sketch1.addConstraint(Sketcher.Constraint("Symmetric", 30, 2, 49, 2, -2))
sketch1.addConstraint(Sketcher.Constraint("Symmetric", 28, 2, 51, 2, -2))
sketch1.addConstraint(Sketcher.Constraint("Symmetric", 26, 2, 53, 2, -2))
sketch1.addConstraint(Sketcher.Constraint("Symmetric", 24, 2, 55, 2, -2))
sketch1.addConstraint(Sketcher.Constraint("Symmetric", 22, 2, 57, 2, -2))
sketch1.addConstraint(Sketcher.Constraint("Symmetric", 20, 2, 59, 2, -2))
sketch1.addConstraint(Sketcher.Constraint("Parallel", 41, 83))
sketch1.addConstraint(Sketcher.Constraint("Horizontal", 6, 2, 9, 2))
sketch1.addConstraint(Sketcher.Constraint("Horizontal", 12, 2, 15, 2))
sketch1.addConstraint(Sketcher.Constraint("Horizontal", 34, 2, 39, 2))
sketch1.addConstraint(Sketcher.Constraint("Vertical", 1, 2, 4, 2))
sketch1.addConstraint(Sketcher.Constraint("Vertical", 9, 2, 12, 2))
sketch1.addConstraint(Sketcher.Constraint("Vertical", 7, 2, 14, 2))
sketch1.addConstraint(Sketcher.Constraint("Vertical", 5, 2, 16, 2))
sketch1.addConstraint(Sketcher.Constraint("Vertical", 3, 2, 18, 2))
sketch1.addConstraint(Sketcher.Constraint("Vertical", 40, 2, 81, 2))
sketch1.addConstraint(Sketcher.Constraint("Vertical", 39, 2, 82, 2))
sketch1.addConstraint(Sketcher.Constraint("Equal", 72, 1))
sketch1.addConstraint(Sketcher.Constraint("Equal", 82, 3))
sketch1.addConstraint(Sketcher.Constraint("Equal", 9, 13))
sketch1.addConstraint(Sketcher.Constraint("Equal", 5, 17))
sketch1.addConstraint(Sketcher.Constraint("Equal", 3, 19))
sketch1.addConstraint(Sketcher.Constraint("DistanceX", 40, 2, 40, 1, Q("0.5 in")))
sketch1.addConstraint(Sketcher.Constraint("DistanceX", -1, 1, 0, 2, Q("1 in")))
sketch1.addConstraint(Sketcher.Constraint("DistanceX", 2, 1, 2, 2, Q("0.23 in")))
sketch1.addConstraint(Sketcher.Constraint("DistanceX", 6, 2, 6, 1, Q("0.25 in")))
sketch1.addConstraint(Sketcher.Constraint("DistanceX", 8, 2, 8, 1, Q("0.125 in")))
sketch1.addConstraint(Sketcher.Constraint("DistanceY", 5, 2, 5, 1, Q("0.181 in")))
sketch1.addConstraint(Sketcher.Constraint("DistanceY", 7, 1, 7, 2, Q("0.051 in")))
sketch1.addConstraint(Sketcher.Constraint("DistanceY", 11, 2, 11, 1, Q("0.138 in")))
sketch1.addConstraint(Sketcher.Constraint("DistanceX", 10, 2, 10, 1, 4.183))
sketch1.addConstraint(Sketcher.Constraint("DistanceX", 0, 1, 0, 2, 7.504545))
pad1 = body.newObject("PartDesign::Pad", "Pad")
pad1.Profile = sketch1
pad1.Length = Q("0.23 in")
pad1.Reversed = True
doc.recompute()

fillet = body.newObject("PartDesign::Fillet", "Fillet")
fillet.Base = (pad1, edges_at(pad1, [
    (-17.895, 2.921, -34.925),
    (-6.35, 2.921, -19.05),
    (6.35, 2.921, -19.05),
    (17.895, 2.921, -34.925),
    (17.895, 2.921, 34.925),
    (6.35, 2.921, 19.05),
    (-6.35, 2.921, 19.05),
    (-17.895, 2.921, 34.925),
]))
fillet.Radius = Q("0.125 in")

doc.recompute()
